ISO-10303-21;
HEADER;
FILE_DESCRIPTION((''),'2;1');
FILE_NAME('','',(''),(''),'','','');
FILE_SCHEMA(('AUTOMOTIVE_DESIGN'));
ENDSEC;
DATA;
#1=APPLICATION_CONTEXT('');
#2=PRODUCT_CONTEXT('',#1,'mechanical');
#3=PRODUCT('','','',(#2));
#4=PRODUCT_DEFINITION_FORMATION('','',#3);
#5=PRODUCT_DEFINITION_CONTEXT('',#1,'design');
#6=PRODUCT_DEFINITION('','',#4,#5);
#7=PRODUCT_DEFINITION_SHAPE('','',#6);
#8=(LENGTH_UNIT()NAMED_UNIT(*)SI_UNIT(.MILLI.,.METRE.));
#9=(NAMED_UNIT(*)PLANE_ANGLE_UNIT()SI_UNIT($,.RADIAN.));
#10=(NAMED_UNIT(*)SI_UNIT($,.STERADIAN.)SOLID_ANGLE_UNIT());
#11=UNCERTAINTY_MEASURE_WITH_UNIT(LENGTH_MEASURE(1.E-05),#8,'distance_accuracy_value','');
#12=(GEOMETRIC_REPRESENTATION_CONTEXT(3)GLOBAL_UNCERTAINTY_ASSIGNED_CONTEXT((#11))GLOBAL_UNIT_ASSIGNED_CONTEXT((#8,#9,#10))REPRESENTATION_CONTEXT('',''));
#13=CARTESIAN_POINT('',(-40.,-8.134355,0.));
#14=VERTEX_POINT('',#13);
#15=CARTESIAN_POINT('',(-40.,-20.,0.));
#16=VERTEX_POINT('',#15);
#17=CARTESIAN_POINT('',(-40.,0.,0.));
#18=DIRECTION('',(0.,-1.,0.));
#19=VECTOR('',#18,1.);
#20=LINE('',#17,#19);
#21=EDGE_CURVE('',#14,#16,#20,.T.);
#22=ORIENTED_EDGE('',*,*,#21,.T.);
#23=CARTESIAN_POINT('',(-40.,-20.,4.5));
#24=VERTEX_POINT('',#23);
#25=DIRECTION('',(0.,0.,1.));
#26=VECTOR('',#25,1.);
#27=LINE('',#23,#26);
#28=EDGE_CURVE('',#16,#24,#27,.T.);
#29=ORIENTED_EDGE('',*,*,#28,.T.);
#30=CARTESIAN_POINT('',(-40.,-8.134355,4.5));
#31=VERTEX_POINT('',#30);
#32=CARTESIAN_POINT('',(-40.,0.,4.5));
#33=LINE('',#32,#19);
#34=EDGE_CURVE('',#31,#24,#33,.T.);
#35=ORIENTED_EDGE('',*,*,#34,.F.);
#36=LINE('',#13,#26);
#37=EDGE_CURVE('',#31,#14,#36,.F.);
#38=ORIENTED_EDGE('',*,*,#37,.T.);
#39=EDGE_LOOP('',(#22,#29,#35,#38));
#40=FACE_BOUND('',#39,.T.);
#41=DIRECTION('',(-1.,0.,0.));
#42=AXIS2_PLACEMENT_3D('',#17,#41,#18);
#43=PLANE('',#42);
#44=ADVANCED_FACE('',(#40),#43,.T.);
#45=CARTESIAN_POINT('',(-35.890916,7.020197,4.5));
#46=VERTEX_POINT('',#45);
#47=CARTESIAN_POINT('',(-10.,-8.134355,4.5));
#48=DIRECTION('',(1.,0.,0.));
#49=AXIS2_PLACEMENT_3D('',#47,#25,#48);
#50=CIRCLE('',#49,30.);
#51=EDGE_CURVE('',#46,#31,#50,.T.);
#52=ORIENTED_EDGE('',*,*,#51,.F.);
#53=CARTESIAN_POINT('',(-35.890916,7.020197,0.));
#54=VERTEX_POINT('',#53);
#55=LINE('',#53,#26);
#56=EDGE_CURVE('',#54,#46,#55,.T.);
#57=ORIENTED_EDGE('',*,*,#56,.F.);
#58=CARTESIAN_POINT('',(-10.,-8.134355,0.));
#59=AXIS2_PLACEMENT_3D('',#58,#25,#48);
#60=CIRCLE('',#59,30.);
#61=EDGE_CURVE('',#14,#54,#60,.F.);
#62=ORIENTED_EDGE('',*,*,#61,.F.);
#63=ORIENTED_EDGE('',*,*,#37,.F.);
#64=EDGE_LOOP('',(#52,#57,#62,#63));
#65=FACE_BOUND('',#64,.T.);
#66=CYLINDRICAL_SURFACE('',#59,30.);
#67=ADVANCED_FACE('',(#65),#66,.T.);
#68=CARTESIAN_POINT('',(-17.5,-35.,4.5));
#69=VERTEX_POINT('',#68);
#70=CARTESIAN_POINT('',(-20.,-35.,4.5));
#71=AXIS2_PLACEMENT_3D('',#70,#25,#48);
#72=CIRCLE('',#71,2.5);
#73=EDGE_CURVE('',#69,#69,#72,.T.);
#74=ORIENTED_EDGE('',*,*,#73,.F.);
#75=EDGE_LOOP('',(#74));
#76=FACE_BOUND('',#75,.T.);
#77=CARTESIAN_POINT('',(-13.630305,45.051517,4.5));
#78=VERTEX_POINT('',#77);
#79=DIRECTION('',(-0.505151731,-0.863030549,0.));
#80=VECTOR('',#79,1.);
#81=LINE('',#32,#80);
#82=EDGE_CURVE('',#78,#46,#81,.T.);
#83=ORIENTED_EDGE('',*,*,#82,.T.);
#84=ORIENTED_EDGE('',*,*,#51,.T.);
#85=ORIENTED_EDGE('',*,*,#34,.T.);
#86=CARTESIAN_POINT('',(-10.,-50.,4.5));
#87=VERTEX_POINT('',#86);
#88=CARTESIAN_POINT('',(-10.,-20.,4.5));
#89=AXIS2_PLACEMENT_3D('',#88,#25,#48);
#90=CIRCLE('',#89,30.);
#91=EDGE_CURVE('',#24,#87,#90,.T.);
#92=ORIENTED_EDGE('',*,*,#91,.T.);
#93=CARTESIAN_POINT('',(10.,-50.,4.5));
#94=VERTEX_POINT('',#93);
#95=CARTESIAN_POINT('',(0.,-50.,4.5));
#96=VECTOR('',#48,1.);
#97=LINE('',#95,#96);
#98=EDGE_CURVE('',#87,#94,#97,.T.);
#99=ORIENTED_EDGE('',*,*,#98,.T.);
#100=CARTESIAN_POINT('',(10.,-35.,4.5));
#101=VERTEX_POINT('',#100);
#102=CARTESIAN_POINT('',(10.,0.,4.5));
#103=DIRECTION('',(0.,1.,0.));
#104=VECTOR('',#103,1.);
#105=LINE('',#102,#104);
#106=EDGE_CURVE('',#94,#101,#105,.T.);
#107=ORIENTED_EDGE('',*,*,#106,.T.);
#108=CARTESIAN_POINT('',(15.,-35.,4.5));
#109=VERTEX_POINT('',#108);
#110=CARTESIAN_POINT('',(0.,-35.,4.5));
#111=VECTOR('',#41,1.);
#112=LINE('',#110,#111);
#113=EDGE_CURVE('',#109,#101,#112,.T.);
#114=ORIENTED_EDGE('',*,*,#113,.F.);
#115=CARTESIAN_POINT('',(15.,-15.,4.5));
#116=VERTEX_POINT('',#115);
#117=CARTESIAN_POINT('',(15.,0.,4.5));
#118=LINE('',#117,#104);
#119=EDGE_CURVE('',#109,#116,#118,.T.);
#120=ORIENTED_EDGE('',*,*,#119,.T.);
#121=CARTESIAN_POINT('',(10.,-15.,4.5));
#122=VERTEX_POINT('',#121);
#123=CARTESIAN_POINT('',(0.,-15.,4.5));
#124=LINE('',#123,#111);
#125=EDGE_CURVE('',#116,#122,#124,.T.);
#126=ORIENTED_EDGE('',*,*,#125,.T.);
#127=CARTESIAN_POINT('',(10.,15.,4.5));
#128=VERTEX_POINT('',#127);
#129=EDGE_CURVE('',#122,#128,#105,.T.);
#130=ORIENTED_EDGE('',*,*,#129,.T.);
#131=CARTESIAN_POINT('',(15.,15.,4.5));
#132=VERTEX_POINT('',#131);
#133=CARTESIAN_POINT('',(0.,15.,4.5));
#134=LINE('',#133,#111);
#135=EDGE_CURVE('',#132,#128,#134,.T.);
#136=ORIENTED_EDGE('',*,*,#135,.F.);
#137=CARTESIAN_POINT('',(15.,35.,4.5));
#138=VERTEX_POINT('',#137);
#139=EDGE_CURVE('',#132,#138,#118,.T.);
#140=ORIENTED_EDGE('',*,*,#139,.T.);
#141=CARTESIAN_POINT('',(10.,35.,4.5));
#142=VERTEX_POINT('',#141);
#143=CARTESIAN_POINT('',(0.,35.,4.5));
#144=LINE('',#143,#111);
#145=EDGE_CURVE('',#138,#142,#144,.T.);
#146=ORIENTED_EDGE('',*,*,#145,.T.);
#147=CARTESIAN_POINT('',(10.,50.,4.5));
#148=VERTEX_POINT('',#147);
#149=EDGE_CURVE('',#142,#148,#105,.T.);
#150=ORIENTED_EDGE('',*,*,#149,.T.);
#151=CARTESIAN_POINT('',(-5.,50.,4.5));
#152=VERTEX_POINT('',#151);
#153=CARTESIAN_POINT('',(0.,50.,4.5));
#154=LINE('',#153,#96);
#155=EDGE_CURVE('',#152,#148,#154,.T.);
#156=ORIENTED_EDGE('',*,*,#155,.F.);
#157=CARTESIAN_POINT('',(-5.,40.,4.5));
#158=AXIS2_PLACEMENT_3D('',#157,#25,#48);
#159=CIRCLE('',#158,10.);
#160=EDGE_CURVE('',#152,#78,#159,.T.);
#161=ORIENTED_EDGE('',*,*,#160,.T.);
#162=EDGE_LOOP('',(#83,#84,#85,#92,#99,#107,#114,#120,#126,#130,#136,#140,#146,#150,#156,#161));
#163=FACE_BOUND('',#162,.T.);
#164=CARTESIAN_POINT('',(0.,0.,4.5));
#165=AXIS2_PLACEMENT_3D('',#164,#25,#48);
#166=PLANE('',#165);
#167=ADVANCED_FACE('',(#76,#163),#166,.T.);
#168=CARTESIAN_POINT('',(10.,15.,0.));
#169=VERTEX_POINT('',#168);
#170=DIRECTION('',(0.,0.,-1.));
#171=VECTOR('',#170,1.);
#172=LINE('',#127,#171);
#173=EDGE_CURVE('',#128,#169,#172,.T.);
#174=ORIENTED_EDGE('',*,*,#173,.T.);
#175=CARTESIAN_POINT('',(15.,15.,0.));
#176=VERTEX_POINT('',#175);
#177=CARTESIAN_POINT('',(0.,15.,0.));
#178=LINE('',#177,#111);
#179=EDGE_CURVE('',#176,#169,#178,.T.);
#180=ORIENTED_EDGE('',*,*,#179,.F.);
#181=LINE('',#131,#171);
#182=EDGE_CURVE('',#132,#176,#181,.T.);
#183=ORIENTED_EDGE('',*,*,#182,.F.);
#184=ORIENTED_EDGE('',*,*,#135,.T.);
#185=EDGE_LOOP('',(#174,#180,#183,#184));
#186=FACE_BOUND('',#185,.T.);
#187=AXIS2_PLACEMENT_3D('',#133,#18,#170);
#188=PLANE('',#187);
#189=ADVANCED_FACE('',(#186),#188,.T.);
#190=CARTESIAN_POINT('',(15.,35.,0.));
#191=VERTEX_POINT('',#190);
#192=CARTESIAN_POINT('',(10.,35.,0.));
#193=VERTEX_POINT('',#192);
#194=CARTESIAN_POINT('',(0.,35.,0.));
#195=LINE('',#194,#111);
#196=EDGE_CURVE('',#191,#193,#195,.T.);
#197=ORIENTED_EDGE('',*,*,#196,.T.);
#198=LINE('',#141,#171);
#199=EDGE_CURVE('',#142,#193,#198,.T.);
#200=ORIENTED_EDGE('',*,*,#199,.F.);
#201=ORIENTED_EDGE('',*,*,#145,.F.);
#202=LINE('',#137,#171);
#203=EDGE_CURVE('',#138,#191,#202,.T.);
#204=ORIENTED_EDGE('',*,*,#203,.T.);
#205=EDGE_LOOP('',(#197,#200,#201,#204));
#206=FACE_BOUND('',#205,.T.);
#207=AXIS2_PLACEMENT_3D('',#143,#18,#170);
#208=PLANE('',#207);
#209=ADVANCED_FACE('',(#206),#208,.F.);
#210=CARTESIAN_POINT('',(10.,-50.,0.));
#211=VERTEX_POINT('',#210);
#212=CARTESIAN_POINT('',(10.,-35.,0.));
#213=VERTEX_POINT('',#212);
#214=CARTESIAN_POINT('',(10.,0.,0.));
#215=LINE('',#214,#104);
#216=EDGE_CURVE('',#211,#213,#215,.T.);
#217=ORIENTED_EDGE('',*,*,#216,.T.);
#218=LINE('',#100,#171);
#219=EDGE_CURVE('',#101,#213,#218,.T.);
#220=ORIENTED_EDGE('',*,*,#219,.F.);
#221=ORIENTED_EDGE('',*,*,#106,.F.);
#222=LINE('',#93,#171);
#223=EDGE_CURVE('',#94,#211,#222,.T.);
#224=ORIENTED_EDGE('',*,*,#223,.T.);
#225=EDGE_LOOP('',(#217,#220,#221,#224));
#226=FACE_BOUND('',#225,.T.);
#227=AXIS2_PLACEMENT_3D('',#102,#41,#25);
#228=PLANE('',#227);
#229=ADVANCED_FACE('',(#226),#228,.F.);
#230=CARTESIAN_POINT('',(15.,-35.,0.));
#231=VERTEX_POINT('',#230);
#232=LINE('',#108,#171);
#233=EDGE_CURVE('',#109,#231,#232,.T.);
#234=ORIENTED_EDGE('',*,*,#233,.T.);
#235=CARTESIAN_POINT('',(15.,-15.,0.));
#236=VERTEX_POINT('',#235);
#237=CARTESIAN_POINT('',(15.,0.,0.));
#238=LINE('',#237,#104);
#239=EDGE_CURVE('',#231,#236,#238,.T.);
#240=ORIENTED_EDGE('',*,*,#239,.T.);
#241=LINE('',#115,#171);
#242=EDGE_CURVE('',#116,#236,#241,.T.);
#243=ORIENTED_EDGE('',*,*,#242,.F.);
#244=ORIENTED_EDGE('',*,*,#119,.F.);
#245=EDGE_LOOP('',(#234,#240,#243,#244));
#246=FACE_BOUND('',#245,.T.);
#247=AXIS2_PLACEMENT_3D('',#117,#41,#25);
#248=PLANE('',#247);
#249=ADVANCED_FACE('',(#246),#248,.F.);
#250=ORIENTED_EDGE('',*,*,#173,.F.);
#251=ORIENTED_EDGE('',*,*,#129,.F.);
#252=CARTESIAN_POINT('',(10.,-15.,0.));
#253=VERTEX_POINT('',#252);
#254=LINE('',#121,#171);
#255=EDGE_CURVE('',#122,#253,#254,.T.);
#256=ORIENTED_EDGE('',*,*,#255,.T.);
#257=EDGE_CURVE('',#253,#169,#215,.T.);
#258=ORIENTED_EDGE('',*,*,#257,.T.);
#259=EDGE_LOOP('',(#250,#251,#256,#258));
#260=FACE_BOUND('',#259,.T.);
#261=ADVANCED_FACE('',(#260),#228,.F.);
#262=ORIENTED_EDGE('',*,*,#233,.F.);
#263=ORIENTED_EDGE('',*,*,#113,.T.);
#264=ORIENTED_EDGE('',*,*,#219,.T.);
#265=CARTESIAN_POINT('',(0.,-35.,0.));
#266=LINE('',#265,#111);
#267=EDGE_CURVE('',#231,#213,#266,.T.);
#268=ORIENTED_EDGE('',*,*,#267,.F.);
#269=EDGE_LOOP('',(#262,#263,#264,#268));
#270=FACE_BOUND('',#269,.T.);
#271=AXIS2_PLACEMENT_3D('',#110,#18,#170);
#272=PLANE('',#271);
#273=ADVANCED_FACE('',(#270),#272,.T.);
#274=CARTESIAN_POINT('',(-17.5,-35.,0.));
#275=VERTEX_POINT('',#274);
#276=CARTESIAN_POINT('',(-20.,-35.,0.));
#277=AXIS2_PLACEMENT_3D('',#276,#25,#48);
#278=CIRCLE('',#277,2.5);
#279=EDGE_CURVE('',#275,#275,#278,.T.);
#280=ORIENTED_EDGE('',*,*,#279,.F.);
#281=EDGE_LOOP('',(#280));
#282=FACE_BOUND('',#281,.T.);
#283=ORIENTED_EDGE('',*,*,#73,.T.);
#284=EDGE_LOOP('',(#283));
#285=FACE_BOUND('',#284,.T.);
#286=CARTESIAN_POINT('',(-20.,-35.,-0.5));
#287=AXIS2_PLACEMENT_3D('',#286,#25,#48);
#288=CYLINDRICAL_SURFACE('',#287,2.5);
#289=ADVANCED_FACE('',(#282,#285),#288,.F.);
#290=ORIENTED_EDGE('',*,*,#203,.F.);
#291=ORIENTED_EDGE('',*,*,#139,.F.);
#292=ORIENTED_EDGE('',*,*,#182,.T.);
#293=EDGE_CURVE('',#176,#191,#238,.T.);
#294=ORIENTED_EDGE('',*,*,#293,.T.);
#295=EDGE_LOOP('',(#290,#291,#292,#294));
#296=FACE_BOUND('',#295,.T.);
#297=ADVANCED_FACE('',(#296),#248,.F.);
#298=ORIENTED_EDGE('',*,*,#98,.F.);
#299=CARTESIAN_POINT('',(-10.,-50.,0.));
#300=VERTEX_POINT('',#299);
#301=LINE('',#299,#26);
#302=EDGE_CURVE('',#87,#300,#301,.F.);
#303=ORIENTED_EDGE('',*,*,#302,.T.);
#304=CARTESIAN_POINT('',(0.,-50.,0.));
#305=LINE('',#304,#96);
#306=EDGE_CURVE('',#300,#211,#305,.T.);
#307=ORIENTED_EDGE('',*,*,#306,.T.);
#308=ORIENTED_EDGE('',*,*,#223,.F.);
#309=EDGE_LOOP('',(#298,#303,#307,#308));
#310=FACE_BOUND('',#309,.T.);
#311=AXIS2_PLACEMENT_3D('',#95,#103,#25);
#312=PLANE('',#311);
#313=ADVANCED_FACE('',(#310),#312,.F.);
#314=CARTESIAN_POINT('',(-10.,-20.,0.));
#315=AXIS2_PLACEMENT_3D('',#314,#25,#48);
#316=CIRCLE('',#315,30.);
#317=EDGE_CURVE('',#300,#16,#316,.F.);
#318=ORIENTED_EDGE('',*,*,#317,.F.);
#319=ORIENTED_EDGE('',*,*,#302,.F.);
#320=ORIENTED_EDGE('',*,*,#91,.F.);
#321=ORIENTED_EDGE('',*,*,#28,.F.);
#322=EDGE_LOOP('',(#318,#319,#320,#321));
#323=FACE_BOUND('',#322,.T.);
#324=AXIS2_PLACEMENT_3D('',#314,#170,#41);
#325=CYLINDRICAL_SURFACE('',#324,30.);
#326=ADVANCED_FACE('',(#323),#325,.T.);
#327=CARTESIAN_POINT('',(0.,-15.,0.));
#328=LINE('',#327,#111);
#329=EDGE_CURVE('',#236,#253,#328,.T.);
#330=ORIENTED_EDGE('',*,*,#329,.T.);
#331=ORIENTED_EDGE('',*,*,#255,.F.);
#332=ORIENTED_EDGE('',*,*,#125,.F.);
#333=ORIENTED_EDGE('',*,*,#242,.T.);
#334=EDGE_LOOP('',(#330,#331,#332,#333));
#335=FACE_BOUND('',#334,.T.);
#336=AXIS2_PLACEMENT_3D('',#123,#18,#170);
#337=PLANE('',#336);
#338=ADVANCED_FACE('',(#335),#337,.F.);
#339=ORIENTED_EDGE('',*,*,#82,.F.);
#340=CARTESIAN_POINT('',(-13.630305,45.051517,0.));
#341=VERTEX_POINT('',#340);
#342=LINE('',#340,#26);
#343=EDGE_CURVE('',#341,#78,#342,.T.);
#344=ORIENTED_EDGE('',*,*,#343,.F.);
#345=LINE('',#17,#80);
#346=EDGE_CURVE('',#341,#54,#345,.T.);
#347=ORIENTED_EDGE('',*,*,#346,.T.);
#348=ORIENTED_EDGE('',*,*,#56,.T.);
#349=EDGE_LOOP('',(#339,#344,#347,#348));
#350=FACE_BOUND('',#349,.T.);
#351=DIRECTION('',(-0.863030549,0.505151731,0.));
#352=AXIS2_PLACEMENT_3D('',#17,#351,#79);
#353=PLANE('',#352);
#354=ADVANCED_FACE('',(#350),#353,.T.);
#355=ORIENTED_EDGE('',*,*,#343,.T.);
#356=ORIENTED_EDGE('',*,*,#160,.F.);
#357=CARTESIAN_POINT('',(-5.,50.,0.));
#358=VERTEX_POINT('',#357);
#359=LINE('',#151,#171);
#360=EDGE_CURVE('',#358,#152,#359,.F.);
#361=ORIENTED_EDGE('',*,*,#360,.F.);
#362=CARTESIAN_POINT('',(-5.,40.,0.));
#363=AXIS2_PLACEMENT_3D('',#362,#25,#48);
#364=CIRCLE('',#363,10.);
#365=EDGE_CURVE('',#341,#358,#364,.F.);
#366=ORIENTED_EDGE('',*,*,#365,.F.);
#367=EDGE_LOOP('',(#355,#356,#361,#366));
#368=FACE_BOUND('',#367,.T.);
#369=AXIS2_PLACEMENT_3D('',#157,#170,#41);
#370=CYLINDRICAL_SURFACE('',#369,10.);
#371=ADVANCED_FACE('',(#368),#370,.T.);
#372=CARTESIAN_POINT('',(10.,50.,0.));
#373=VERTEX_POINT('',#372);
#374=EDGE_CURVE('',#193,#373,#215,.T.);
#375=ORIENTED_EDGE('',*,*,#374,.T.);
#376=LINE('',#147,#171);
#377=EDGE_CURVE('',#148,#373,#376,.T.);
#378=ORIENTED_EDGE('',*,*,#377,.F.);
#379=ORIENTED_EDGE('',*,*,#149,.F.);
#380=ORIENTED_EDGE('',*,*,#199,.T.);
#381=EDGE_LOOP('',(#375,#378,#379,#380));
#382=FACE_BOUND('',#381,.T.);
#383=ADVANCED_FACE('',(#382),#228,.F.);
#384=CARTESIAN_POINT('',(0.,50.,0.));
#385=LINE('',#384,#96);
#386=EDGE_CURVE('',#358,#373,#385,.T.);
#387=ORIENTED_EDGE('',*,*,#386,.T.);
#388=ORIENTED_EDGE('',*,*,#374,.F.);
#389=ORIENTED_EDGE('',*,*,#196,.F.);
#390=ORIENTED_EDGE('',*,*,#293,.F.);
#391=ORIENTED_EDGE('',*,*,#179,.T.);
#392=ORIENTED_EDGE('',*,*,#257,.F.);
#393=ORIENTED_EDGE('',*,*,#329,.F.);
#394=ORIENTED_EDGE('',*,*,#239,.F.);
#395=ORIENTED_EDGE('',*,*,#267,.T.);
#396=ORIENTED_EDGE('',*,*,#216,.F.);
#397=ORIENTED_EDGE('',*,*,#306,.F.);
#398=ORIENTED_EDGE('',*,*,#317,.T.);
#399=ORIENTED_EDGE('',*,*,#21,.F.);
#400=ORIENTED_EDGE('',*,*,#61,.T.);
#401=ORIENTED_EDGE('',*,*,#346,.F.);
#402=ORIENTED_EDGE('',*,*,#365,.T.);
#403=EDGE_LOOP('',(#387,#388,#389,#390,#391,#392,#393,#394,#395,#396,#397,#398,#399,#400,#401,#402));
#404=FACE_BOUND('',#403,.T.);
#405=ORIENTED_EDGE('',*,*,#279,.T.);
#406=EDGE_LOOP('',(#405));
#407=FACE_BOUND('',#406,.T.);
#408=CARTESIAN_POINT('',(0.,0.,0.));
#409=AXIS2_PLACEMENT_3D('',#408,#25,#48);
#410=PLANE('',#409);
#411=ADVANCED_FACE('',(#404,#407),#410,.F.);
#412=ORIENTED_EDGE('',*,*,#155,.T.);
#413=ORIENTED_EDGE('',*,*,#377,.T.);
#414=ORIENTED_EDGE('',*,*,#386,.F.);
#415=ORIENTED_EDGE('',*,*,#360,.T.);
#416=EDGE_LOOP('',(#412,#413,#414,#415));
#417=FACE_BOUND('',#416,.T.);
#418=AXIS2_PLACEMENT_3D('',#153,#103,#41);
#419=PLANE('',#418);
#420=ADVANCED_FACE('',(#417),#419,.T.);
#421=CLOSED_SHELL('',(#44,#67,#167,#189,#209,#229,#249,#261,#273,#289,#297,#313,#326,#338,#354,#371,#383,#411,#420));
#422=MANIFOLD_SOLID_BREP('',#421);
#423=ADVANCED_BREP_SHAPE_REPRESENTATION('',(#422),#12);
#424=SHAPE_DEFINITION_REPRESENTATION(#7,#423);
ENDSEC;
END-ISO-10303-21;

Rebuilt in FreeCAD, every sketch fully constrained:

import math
import FreeCAD as App
import Part
import Sketcher
from FreeCAD import Vector


def edges_at(feature, points):
    """Names of the edges that pass closest to the given points."""
    edges = feature.Shape.Edges
    near = lambda p: min(range(len(edges)), key=lambda i: edges[i].distToShape(Part.Vertex(*p))[0])
    return sorted({f"Edge{near(p) + 1}" for p in points})


def add_polygon(sketch, points):
    """Adds a closed chain of lines whose ends are joined by coincident constraints."""
    first, n = sketch.GeometryCount, len(points)
    for a, b in zip(points, points[1:] + points[:1]):
        sketch.addGeometry(Part.LineSegment(App.Vector(*a, 0), App.Vector(*b, 0)), False)
    for i in range(n):
        sketch.addConstraint(Sketcher.Constraint("Coincident", first + i, 2, first + (i + 1) % n, 1))

doc = App.newDocument("Part")
body = doc.addObject("PartDesign::Body", "Body")

sketch1 = body.newObject("Sketcher::SketchObject", "Sketch")
sketch1.AttachmentSupport = (doc.getObject("XY_Plane"), [""])
sketch1.MapMode = "FlatFace"
add_polygon(sketch1, [(10, -15), (10, 15), (15, 15), (15, 35), (10, 35), (10, 50), (-15, 50), (-15, -50), (10, -50), (10, -35), (15, -35), (15, -15)])
sketch1.addConstraint([
    Sketcher.Constraint("Vertical", 0),
    Sketcher.Constraint("Horizontal", 1),
    Sketcher.Constraint("Vertical", 2),
    Sketcher.Constraint("Horizontal", 3),
    Sketcher.Constraint("Vertical", 4),
    Sketcher.Constraint("Horizontal", 5),
    Sketcher.Constraint("Vertical", 6),
    Sketcher.Constraint("Horizontal", 7),
    Sketcher.Constraint("Vertical", 8),
    Sketcher.Constraint("Horizontal", 9),
    Sketcher.Constraint("Vertical", 10),
    Sketcher.Constraint("Horizontal", 11),
    Sketcher.Constraint("Symmetric", 4, 2, 7, 2, -1),
    Sketcher.Constraint("Symmetric", 2, 2, 9, 2, -1),
    Sketcher.Constraint("Vertical", 0, 2, 3, 2),
    Sketcher.Constraint("Equal", 2, 10),
    Sketcher.Constraint("DistanceX", 1, 1, 1, 2, 5.0),
    Sketcher.Constraint("DistanceX", 5, 2, 5, 1, 25.0),
    Sketcher.Constraint("DistanceY", 0, 1, 0, 2, 30.0),
    Sketcher.Constraint("DistanceY", 2, 1, 2, 2, 20.0),
    Sketcher.Constraint("DistanceY", 4, 1, 4, 2, 15.0),
    Sketcher.Constraint("DistanceX", -1, 1, 0, 2, 10.0),
])
pad1 = body.newObject("PartDesign::Pad", "Pad")
pad1.Profile = sketch1
pad1.Length = 4.5
doc.recompute()

fillet = body.newObject("PartDesign::Fillet", "Fillet")
fillet.Base = (pad1, edges_at(pad1, [(-15, -50, 2.25), (-15, 50, 2.25)]))
fillet.Radius = 10

sketch2 = body.newObject("Sketcher::SketchObject", "Sketch001")
sketch2.AttachmentSupport = (doc.getObject("XY_Plane"), [""])
sketch2.MapMode = "FlatFace"
sketch2.AttachmentOffset = App.Placement(Vector(0, 0, 4.5), App.Rotation())
sketch2.addGeometry([
    Part.LineSegment(Vector(-14, 45, 0), Vector(-40, 0, 0)),
    Part.LineSegment(Vector(-40, 0, 0), Vector(-40, -50, 0)),
    Part.LineSegment(Vector(-40, -50, 0), Vector(-5, -50, 0)),
    Part.ArcOfCircle(Part.Circle(Vector(-5, -40, 0), Vector(0, 0, 1), 10), math.radians(180), math.radians(270)),
    Part.LineSegment(Vector(-15, -40, 0), Vector(-15, 40, 0)),
    Part.ArcOfCircle(Part.Circle(Vector(-5, 40, 0), Vector(0, 0, 1), 10), math.radians(150), math.radians(180)),
], False)
sketch2.addConstraint([
    Sketcher.Constraint("Coincident", 0, 2, 1, 1),
    Sketcher.Constraint("Coincident", 1, 2, 2, 1),
    Sketcher.Constraint("Tangent", 2, 2, 3, 2),
    Sketcher.Constraint("Tangent", 3, 1, 4, 1),
    Sketcher.Constraint("Tangent", 4, 2, 5, 2),
    Sketcher.Constraint("Tangent", 5, 1, 0, 1),
    Sketcher.Constraint("Vertical", 1),
    Sketcher.Constraint("Horizontal", 2),
    Sketcher.Constraint("Vertical", 4),
    Sketcher.Constraint("Equal", 3, 5),
    Sketcher.Constraint("PointOnObject", 0, 2, -1),
    Sketcher.Constraint("Radius", 3, 10.0),
    Sketcher.Constraint("DistanceX", 2, 1, 2, 2, 35.0),
    Sketcher.Constraint("DistanceY", 1, 2, 1, 1, 50.0),
    Sketcher.Constraint("DistanceY", 4, 1, 4, 2, 80.0),
    Sketcher.Constraint("DistanceX", 3, 3, -1, 1, 5.0),
])
pad2 = body.newObject("PartDesign::Pad", "Pad001")
pad2.Profile = sketch2
pad2.Length = 4.5
pad2.Reversed = True
doc.recompute()

fillet2 = body.newObject("PartDesign::Fillet", "Fillet001")
fillet2.Base = (pad2, edges_at(pad2, [(-40, -50, 2.25), (-40, 0, 2.25)]))
fillet2.Radius = 30

sketch3 = body.newObject("Sketcher::SketchObject", "Sketch002")
sketch3.AttachmentSupport = (doc.getObject("XY_Plane"), [""])
sketch3.MapMode = "FlatFace"
sketch3.AttachmentOffset = App.Placement(Vector(0, 0, 4.5), App.Rotation())
sketch3.addGeometry(Part.Circle(Vector(-20, -35, 0), Vector(0, 0, 1), 2.5), False)
sketch3.addConstraint([
    Sketcher.Constraint("Diameter", 0, 5.0),
    Sketcher.Constraint("DistanceX", 0, 3, -1, 1, 20.0),
    Sketcher.Constraint("DistanceY", 0, 3, -1, 1, 35.0),
])
pocket1 = body.newObject("PartDesign::Pocket", "Pocket")
pocket1.Profile = sketch3
pocket1.Length = 5

doc.recompute()
